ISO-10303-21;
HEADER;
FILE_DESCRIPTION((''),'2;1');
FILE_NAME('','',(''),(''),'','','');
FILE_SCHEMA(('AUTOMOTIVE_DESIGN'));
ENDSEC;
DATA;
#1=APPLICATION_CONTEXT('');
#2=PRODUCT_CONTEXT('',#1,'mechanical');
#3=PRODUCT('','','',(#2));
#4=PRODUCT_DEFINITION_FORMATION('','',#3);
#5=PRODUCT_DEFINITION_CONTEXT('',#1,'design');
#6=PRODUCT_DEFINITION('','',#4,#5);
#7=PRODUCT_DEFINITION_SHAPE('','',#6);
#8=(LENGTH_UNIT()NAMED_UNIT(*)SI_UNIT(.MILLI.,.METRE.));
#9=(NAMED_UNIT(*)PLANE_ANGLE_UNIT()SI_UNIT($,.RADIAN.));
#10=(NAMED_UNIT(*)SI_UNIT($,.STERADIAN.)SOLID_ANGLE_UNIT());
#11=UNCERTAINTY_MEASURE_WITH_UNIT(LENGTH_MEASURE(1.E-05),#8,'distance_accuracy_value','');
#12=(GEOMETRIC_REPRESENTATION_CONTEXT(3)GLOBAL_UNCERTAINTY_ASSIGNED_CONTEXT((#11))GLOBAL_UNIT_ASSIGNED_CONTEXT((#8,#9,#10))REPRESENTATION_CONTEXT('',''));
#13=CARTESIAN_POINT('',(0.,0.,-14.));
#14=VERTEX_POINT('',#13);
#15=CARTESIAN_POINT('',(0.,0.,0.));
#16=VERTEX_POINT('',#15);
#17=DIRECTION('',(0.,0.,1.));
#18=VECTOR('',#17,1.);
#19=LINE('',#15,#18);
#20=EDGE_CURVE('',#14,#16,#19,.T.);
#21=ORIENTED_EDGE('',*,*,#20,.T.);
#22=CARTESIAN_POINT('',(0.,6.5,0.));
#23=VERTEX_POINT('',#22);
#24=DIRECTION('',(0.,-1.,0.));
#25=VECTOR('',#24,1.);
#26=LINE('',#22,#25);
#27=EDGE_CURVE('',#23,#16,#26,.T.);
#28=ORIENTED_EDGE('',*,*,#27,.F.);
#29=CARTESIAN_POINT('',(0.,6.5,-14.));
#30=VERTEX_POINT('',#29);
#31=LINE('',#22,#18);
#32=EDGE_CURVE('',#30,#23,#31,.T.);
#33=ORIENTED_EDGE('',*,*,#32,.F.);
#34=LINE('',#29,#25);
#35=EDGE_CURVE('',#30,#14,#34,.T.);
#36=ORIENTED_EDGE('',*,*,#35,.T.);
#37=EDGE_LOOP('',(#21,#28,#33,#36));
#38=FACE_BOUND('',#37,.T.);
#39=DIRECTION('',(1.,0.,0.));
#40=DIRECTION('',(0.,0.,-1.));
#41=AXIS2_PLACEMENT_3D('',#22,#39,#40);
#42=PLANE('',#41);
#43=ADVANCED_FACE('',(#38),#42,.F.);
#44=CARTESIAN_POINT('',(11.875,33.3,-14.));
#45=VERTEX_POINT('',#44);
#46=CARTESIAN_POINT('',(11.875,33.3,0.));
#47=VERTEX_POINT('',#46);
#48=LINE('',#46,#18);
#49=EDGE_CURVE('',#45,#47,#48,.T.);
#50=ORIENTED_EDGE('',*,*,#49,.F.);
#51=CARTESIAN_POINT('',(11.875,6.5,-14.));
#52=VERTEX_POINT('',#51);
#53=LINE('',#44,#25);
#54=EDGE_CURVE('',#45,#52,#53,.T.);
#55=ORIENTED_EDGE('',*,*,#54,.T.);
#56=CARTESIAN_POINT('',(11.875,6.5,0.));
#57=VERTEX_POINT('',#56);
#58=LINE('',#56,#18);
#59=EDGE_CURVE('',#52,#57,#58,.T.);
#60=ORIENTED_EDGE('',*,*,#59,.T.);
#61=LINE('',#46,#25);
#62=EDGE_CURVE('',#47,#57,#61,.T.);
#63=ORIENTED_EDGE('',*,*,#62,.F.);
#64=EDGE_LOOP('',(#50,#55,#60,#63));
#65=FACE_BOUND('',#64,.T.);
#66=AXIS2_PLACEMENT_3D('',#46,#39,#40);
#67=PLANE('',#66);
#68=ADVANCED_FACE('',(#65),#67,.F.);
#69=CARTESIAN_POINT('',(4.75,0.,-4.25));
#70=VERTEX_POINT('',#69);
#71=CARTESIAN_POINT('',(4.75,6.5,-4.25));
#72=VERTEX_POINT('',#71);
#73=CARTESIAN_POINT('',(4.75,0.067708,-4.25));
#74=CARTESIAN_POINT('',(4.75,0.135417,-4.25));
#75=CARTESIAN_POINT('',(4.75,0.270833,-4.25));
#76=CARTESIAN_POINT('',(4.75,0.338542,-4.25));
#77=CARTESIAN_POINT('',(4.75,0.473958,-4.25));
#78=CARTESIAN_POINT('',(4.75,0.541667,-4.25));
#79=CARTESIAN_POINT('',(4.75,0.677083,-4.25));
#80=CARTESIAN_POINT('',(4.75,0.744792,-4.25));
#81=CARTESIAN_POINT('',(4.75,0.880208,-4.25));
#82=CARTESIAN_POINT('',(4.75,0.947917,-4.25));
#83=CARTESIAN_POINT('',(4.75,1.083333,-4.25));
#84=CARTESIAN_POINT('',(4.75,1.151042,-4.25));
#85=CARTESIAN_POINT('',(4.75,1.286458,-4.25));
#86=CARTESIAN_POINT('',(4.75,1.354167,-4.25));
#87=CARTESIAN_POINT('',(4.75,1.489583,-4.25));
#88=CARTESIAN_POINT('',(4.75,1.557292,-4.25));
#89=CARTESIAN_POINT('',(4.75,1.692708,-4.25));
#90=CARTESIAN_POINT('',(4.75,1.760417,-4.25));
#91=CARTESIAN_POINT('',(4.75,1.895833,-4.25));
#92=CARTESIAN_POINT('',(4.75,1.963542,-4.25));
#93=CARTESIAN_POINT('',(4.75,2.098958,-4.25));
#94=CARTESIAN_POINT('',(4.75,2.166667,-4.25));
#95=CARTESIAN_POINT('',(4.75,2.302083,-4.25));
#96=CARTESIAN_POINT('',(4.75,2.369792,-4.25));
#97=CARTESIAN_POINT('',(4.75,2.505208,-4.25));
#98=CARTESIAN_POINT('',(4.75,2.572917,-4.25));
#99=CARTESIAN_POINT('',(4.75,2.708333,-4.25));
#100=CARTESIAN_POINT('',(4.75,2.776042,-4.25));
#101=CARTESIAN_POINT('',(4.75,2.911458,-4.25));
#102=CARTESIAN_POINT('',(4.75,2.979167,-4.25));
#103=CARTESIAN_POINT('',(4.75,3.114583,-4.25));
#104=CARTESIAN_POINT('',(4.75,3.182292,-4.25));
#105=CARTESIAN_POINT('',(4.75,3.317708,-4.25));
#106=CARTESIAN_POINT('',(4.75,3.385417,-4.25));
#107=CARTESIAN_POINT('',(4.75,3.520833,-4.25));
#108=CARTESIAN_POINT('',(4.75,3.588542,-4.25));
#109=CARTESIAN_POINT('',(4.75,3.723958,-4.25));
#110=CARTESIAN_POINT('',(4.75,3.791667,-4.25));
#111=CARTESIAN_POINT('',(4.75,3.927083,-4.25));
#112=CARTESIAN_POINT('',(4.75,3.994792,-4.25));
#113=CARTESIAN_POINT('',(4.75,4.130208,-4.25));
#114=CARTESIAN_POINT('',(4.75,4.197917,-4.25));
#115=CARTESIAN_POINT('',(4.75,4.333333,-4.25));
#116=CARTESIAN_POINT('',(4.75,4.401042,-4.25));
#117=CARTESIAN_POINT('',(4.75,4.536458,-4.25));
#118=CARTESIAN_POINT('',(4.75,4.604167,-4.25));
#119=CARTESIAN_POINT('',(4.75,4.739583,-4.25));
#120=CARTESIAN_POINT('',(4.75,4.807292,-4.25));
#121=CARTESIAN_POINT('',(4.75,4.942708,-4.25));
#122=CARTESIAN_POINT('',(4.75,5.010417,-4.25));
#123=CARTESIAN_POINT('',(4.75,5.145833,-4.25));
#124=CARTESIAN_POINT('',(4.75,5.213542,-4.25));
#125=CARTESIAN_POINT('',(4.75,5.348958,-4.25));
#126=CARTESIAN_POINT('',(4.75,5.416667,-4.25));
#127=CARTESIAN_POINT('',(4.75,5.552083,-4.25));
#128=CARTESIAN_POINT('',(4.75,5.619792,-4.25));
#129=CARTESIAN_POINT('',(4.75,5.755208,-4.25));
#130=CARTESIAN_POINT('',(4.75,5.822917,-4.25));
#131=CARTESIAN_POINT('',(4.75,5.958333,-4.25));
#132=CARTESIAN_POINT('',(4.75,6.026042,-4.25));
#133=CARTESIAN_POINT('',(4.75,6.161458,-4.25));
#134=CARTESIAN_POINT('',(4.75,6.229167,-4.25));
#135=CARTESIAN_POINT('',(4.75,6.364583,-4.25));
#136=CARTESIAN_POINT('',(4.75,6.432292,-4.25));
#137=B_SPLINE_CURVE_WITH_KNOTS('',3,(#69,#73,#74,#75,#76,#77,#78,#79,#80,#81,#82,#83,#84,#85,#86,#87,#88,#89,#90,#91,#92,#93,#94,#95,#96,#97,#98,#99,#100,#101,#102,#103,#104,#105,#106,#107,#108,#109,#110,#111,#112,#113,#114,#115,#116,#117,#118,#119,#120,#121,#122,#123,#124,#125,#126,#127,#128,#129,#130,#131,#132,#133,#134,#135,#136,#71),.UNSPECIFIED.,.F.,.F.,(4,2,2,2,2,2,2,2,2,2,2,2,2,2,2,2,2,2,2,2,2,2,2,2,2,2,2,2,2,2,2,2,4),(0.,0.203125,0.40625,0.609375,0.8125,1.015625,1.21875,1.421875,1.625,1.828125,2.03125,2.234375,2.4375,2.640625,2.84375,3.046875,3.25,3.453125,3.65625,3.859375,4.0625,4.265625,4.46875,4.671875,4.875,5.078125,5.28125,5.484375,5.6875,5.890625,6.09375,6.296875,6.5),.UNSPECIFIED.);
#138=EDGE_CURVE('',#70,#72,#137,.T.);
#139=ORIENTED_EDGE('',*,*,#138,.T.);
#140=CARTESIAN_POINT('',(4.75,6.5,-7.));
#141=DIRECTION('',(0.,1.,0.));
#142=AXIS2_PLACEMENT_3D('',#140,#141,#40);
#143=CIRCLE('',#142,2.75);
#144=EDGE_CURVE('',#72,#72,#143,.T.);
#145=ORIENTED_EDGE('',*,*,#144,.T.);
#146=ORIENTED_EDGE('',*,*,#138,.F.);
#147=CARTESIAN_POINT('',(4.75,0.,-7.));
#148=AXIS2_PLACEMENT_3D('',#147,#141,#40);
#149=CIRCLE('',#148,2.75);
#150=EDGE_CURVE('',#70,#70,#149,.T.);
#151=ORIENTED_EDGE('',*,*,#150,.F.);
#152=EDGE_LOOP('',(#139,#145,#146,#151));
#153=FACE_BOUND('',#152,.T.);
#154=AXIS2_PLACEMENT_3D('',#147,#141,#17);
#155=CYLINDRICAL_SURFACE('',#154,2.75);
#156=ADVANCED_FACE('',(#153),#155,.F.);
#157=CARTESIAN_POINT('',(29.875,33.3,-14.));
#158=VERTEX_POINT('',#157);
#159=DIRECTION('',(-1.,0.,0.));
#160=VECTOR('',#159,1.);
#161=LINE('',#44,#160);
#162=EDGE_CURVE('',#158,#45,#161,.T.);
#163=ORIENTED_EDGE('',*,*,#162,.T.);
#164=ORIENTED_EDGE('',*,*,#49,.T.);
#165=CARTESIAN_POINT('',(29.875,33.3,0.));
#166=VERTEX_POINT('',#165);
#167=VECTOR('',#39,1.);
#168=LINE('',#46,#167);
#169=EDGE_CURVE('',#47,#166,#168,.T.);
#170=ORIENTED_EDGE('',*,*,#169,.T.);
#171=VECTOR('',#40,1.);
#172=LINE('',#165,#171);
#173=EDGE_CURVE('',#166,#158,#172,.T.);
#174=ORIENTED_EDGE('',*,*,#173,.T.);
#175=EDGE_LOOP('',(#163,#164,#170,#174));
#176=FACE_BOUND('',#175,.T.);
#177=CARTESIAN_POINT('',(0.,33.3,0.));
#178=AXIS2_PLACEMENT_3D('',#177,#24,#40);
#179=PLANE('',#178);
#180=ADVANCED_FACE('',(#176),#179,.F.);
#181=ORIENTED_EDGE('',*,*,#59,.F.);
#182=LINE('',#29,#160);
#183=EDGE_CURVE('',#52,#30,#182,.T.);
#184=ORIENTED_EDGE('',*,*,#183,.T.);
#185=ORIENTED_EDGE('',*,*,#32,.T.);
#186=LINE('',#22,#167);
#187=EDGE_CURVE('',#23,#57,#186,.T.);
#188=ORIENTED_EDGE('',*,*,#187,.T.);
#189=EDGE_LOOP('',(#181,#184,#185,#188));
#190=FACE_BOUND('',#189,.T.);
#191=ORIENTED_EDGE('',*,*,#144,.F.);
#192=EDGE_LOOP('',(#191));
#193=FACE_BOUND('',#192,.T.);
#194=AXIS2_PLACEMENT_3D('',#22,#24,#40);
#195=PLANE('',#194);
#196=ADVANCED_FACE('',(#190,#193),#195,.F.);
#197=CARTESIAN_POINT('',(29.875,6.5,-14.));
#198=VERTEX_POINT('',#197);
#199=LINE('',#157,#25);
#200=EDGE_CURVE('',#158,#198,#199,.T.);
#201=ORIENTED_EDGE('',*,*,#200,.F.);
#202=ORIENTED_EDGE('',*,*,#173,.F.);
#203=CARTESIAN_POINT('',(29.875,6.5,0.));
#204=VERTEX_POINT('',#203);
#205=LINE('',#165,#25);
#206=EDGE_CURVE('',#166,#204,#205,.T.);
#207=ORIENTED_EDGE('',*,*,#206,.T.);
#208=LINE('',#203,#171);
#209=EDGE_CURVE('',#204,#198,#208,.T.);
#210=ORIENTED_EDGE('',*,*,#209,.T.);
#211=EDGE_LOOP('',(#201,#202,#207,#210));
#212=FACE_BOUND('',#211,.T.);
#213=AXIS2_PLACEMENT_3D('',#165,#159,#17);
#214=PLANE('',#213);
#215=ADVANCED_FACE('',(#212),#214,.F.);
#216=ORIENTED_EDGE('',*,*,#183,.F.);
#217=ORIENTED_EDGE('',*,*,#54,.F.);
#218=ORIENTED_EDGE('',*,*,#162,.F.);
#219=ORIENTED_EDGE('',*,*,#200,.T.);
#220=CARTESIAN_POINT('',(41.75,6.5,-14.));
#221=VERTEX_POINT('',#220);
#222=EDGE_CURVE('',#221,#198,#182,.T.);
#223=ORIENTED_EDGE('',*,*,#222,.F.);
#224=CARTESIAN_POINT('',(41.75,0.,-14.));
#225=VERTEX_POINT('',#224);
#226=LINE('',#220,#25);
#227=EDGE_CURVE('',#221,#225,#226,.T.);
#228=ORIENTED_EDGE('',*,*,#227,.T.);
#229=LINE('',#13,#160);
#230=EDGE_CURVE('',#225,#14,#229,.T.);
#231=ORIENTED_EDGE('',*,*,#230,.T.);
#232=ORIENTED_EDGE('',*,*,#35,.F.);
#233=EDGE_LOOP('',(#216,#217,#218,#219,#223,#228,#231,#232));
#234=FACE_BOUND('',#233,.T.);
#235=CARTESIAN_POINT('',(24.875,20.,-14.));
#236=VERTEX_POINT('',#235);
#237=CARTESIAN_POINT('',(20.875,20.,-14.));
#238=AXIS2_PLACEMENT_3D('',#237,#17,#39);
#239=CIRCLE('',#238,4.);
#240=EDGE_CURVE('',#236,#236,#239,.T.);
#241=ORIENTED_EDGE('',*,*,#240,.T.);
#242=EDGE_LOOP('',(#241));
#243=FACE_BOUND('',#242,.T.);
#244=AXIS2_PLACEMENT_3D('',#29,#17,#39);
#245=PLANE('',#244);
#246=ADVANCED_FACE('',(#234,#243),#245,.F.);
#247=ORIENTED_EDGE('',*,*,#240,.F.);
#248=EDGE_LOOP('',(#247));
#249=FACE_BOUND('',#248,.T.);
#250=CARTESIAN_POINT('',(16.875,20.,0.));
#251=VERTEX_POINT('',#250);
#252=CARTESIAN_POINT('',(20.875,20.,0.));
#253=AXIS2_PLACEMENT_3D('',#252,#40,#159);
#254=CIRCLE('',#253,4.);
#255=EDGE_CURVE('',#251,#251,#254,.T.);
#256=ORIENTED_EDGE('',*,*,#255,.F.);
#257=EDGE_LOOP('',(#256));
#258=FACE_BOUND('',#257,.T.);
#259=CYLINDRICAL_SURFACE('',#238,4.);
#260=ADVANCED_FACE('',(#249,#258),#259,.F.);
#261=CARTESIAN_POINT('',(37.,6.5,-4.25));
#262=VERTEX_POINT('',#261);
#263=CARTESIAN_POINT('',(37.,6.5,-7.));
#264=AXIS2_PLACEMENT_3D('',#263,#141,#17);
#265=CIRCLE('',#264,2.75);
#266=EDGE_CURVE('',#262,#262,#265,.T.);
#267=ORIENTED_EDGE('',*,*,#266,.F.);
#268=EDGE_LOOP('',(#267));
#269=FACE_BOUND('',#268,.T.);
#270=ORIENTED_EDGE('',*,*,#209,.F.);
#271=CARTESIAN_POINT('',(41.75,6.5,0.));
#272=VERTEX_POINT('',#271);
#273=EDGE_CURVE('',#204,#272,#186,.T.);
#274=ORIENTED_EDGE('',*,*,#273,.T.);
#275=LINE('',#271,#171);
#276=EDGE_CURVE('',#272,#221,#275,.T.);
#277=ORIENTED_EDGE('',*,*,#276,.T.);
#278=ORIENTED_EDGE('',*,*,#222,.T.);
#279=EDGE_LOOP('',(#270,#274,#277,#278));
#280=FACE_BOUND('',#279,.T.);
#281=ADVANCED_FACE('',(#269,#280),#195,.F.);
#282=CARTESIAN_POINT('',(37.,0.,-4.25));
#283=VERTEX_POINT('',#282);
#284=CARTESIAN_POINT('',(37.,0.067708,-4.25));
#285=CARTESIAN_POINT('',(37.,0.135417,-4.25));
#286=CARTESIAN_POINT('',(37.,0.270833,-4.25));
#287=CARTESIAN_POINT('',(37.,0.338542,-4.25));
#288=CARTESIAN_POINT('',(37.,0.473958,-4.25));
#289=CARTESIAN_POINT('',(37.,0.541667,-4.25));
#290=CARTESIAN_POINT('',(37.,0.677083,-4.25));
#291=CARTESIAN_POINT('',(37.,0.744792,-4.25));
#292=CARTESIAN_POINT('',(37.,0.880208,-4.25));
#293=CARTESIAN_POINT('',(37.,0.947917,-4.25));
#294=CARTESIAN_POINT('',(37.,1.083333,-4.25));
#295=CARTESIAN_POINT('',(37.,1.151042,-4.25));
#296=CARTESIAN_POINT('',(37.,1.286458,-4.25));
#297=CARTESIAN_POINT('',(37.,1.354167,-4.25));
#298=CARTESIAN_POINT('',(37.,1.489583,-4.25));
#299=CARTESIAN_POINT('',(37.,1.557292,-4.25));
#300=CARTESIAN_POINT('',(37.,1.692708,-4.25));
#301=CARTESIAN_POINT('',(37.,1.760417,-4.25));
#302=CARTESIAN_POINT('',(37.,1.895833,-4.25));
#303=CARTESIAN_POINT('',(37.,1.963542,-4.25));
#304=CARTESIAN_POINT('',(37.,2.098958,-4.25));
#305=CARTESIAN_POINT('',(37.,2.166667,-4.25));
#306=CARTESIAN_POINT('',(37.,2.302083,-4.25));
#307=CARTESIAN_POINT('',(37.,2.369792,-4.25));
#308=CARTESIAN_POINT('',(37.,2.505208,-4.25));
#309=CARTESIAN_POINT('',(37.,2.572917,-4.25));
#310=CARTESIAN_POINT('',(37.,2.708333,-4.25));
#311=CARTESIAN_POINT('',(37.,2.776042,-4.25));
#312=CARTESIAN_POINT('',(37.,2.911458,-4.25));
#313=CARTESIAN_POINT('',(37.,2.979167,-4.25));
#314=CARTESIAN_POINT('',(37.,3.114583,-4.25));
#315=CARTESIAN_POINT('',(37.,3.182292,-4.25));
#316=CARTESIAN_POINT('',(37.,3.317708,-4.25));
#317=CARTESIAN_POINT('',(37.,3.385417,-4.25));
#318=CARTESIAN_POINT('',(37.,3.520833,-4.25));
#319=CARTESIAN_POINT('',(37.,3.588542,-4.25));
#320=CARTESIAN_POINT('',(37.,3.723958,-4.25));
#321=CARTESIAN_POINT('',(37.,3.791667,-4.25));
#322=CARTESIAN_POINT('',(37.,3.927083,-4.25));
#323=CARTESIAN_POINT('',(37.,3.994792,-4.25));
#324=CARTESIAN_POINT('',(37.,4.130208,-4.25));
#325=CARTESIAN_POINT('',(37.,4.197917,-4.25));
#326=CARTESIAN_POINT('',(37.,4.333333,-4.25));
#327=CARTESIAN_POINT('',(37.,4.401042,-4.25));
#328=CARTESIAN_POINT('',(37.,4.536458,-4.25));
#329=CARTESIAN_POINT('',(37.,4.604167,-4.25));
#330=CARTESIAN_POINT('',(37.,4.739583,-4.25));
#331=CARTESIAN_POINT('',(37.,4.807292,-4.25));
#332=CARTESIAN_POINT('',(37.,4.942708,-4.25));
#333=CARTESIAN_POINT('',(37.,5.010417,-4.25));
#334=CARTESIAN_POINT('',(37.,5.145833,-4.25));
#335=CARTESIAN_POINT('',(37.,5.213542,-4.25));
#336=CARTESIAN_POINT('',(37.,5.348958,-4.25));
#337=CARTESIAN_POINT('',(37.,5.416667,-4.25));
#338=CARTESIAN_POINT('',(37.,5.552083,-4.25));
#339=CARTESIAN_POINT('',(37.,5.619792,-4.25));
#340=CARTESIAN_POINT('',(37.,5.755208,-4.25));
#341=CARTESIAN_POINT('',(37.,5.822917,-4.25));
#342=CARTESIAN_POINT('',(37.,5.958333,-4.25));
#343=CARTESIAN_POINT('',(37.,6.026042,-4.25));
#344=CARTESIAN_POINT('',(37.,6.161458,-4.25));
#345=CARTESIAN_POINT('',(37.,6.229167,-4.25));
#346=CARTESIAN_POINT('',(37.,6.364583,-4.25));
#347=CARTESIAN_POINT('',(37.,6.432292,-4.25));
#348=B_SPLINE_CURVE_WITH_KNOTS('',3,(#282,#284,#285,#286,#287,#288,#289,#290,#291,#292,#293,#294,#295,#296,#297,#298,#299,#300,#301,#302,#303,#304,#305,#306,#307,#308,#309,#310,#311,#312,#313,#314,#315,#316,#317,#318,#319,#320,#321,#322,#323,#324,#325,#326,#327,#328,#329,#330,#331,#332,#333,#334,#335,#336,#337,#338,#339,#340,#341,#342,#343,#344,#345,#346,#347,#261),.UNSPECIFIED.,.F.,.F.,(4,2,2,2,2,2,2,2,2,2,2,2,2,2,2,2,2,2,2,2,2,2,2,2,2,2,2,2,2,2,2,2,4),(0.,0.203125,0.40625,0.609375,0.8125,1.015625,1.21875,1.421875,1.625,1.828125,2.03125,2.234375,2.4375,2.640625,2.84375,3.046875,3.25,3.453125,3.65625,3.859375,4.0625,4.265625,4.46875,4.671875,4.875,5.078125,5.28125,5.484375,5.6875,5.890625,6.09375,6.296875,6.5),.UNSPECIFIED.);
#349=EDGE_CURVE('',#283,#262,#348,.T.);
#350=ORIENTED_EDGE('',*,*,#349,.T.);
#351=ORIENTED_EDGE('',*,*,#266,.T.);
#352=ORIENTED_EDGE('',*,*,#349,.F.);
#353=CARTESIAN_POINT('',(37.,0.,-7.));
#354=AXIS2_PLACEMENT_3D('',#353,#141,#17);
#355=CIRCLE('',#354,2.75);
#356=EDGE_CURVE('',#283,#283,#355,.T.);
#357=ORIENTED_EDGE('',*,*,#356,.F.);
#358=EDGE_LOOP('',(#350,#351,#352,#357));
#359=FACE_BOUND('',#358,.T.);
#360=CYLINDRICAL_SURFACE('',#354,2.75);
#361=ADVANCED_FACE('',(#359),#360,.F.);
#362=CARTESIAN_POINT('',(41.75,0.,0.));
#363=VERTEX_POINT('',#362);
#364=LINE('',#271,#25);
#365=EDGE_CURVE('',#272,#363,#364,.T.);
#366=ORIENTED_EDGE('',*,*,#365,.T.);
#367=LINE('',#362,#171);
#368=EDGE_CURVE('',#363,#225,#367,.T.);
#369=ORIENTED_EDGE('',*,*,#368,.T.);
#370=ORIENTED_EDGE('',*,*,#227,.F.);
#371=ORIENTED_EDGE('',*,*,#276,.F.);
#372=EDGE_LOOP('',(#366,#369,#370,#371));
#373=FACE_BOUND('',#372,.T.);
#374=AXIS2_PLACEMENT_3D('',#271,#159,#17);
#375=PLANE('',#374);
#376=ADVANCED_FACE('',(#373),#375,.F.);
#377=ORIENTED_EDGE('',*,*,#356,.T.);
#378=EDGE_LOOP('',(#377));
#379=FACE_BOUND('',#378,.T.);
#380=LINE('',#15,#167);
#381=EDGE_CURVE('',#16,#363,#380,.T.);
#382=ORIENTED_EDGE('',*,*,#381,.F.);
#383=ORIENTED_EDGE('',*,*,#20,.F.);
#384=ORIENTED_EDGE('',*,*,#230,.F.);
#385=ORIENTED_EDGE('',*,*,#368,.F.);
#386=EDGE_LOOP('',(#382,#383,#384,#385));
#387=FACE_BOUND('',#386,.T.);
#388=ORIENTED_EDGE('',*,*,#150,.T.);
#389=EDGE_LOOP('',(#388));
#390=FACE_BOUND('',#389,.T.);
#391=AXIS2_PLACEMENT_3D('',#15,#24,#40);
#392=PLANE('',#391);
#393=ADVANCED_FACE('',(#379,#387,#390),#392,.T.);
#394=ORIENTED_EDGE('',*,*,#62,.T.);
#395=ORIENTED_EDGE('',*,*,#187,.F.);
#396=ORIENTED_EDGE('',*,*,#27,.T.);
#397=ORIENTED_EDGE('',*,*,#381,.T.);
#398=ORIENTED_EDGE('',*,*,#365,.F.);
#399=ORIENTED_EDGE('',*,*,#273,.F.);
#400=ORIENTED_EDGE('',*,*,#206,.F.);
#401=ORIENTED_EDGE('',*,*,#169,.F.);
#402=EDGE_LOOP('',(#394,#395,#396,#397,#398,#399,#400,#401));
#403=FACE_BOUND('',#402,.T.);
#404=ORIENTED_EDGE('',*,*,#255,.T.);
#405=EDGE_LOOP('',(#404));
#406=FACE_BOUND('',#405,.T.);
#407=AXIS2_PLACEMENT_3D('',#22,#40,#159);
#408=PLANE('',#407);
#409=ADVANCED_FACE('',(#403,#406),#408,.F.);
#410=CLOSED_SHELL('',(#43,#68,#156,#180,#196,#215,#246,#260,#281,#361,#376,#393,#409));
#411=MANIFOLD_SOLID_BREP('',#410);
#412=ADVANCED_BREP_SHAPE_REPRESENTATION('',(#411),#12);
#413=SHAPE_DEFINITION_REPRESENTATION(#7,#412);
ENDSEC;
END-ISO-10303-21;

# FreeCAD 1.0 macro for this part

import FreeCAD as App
import Part
import Sketcher
from FreeCAD import Vector
Q = App.Units.Quantity

doc = App.newDocument("Part")
body = doc.addObject("PartDesign::Body", "Body")

sketch1 = body.newObject("Sketcher::SketchObject", "Sketch")
sketch1.AttachmentSupport = (doc.getObject("XZ_Plane"), [""])
sketch1.MapMode = "FlatFace"
sketch1.addGeometry(Part.LineSegment(Vector(0, -14, 0), Vector(0, 0, 0)), False)
sketch1.addGeometry(Part.LineSegment(Vector(0, 0, 0), Vector(42, 0, 0)), False)
sketch1.addGeometry(Part.LineSegment(Vector(42, 0, 0), Vector(42, -14, 0)), False)
sketch1.addGeometry(Part.LineSegment(Vector(42, -14, 0), Vector(0, -14, 0)), False)
sketch1.addConstraint(Sketcher.Constraint("Coincident", 0, 2, 1, 1))
sketch1.addConstraint(Sketcher.Constraint("Coincident", 1, 2, 2, 1))
sketch1.addConstraint(Sketcher.Constraint("Coincident", 2, 2, 3, 1))
sketch1.addConstraint(Sketcher.Constraint("Coincident", 3, 2, 0, 1))
sketch1.addConstraint(Sketcher.Constraint("Vertical", 0))
sketch1.addConstraint(Sketcher.Constraint("Horizontal", 1))
sketch1.addConstraint(Sketcher.Constraint("Vertical", 2))
sketch1.addConstraint(Sketcher.Constraint("Horizontal", 3))
sketch1.addConstraint(Sketcher.Constraint("Coincident", 0, 2, -1, 1))
sketch1.addConstraint(Sketcher.Constraint("DistanceY", 0, 1, 0, 2, Q("14 mm")))
sketch1.addConstraint(Sketcher.Constraint("DistanceX", 1, 1, 1, 2, Q("41.75 mm")))
pad1 = body.newObject("PartDesign::Pad", "Pad")
pad1.Profile = sketch1
pad1.Length = 6.5
pad1.Reversed = True

sketch2 = body.newObject("Sketcher::SketchObject", "Sketch001")
sketch2.AttachmentSupport = (doc.getObject("XZ_Plane"), [""])
sketch2.MapMode = "FlatFace"
sketch2.AttachmentOffset = App.Placement(Vector(0, 0, -6.5), App.Rotation())
sketch2.addGeometry(Part.LineSegment(Vector(12, -14, 0), Vector(12, 0, 0)), False)
sketch2.addGeometry(Part.LineSegment(Vector(12, 0, 0), Vector(30, 0, 0)), False)
sketch2.addGeometry(Part.LineSegment(Vector(30, 0, 0), Vector(30, -14, 0)), False)
sketch2.addGeometry(Part.LineSegment(Vector(30, -14, 0), Vector(12, -14, 0)), False)
sketch2.addConstraint(Sketcher.Constraint("Coincident", 0, 2, 1, 1))
sketch2.addConstraint(Sketcher.Constraint("Coincident", 1, 2, 2, 1))
sketch2.addConstraint(Sketcher.Constraint("Coincident", 2, 2, 3, 1))
sketch2.addConstraint(Sketcher.Constraint("Coincident", 3, 2, 0, 1))
sketch2.addConstraint(Sketcher.Constraint("Vertical", 0))
sketch2.addConstraint(Sketcher.Constraint("Horizontal", 1))
sketch2.addConstraint(Sketcher.Constraint("Vertical", 2))
sketch2.addConstraint(Sketcher.Constraint("Horizontal", 3))
sketch2.addConstraint(Sketcher.Constraint("PointOnObject", 0, 2, -1))
sketch2.addConstraint(Sketcher.Constraint("DistanceX", 1, 1, 1, 2, Q("18 mm")))
sketch2.addConstraint(Sketcher.Constraint("DistanceY", 0, 1, 0, 2, Q("14 mm")))
sketch2.addConstraint(Sketcher.Constraint("DistanceX", -1, 1, 0, 2, Q("11.875 mm")))
pad2 = body.newObject("PartDesign::Pad", "Pad001")
pad2.Profile = sketch2
pad2.Length = 26.8
pad2.Reversed = True

sketch3 = body.newObject("Sketcher::SketchObject", "Sketch002")
sketch3.AttachmentSupport = (doc.getObject("XY_Plane"), [""])
sketch3.MapMode = "FlatFace"
sketch3.addGeometry(Part.Circle(Vector(20.9, 20, 0), Vector(0, 0, 1), 4), False)
sketch3.addConstraint(Sketcher.Constraint("Diameter", 0, Q("8 mm")))
sketch3.addConstraint(Sketcher.Constraint("DistanceY", -1, 1, 0, 3, Q("20 mm")))
sketch3.addConstraint(Sketcher.Constraint("DistanceX", -1, 1, 0, 3, Q("20.875 mm")))
pocket1 = body.newObject("PartDesign::Pocket", "Pocket")
pocket1.Profile = sketch3
pocket1.Type = "ThroughAll"
pocket1.Midplane = True

sketch4 = body.newObject("Sketcher::SketchObject", "Sketch003")
sketch4.AttachmentSupport = (doc.getObject("XZ_Plane"), [""])
sketch4.MapMode = "FlatFace"
sketch4.AttachmentOffset = App.Placement(Vector(0, 0, -6.5), App.Rotation())
sketch4.addGeometry(Part.Circle(Vector(37, -7, 0), Vector(0, 0, 1), 2.8), False)
sketch4.addGeometry(Part.Circle(Vector(4.8, -7, 0), Vector(0, 0, 1), 2.8), False)
sketch4.addConstraint(Sketcher.Constraint("Equal", 0, 1))
sketch4.addConstraint(Sketcher.Constraint("Horizontal", 0, 3, 1, 3))
sketch4.addConstraint(Sketcher.Constraint("Diameter", 0, Q("5.5 mm")))
sketch4.addConstraint(Sketcher.Constraint("DistanceX", -1, 1, 0, 3, Q("37 mm")))
sketch4.addConstraint(Sketcher.Constraint("DistanceY", 0, 3, -1, 1, Q("7 mm")))
sketch4.addConstraint(Sketcher.Constraint("DistanceX", -1, 1, 1, 3, Q("4.75 mm")))
pocket2 = body.newObject("PartDesign::Pocket", "Pocket001")
pocket2.Profile = sketch4
pocket2.Type = "ThroughAll"
pocket2.Reversed = True

doc.recompute()
